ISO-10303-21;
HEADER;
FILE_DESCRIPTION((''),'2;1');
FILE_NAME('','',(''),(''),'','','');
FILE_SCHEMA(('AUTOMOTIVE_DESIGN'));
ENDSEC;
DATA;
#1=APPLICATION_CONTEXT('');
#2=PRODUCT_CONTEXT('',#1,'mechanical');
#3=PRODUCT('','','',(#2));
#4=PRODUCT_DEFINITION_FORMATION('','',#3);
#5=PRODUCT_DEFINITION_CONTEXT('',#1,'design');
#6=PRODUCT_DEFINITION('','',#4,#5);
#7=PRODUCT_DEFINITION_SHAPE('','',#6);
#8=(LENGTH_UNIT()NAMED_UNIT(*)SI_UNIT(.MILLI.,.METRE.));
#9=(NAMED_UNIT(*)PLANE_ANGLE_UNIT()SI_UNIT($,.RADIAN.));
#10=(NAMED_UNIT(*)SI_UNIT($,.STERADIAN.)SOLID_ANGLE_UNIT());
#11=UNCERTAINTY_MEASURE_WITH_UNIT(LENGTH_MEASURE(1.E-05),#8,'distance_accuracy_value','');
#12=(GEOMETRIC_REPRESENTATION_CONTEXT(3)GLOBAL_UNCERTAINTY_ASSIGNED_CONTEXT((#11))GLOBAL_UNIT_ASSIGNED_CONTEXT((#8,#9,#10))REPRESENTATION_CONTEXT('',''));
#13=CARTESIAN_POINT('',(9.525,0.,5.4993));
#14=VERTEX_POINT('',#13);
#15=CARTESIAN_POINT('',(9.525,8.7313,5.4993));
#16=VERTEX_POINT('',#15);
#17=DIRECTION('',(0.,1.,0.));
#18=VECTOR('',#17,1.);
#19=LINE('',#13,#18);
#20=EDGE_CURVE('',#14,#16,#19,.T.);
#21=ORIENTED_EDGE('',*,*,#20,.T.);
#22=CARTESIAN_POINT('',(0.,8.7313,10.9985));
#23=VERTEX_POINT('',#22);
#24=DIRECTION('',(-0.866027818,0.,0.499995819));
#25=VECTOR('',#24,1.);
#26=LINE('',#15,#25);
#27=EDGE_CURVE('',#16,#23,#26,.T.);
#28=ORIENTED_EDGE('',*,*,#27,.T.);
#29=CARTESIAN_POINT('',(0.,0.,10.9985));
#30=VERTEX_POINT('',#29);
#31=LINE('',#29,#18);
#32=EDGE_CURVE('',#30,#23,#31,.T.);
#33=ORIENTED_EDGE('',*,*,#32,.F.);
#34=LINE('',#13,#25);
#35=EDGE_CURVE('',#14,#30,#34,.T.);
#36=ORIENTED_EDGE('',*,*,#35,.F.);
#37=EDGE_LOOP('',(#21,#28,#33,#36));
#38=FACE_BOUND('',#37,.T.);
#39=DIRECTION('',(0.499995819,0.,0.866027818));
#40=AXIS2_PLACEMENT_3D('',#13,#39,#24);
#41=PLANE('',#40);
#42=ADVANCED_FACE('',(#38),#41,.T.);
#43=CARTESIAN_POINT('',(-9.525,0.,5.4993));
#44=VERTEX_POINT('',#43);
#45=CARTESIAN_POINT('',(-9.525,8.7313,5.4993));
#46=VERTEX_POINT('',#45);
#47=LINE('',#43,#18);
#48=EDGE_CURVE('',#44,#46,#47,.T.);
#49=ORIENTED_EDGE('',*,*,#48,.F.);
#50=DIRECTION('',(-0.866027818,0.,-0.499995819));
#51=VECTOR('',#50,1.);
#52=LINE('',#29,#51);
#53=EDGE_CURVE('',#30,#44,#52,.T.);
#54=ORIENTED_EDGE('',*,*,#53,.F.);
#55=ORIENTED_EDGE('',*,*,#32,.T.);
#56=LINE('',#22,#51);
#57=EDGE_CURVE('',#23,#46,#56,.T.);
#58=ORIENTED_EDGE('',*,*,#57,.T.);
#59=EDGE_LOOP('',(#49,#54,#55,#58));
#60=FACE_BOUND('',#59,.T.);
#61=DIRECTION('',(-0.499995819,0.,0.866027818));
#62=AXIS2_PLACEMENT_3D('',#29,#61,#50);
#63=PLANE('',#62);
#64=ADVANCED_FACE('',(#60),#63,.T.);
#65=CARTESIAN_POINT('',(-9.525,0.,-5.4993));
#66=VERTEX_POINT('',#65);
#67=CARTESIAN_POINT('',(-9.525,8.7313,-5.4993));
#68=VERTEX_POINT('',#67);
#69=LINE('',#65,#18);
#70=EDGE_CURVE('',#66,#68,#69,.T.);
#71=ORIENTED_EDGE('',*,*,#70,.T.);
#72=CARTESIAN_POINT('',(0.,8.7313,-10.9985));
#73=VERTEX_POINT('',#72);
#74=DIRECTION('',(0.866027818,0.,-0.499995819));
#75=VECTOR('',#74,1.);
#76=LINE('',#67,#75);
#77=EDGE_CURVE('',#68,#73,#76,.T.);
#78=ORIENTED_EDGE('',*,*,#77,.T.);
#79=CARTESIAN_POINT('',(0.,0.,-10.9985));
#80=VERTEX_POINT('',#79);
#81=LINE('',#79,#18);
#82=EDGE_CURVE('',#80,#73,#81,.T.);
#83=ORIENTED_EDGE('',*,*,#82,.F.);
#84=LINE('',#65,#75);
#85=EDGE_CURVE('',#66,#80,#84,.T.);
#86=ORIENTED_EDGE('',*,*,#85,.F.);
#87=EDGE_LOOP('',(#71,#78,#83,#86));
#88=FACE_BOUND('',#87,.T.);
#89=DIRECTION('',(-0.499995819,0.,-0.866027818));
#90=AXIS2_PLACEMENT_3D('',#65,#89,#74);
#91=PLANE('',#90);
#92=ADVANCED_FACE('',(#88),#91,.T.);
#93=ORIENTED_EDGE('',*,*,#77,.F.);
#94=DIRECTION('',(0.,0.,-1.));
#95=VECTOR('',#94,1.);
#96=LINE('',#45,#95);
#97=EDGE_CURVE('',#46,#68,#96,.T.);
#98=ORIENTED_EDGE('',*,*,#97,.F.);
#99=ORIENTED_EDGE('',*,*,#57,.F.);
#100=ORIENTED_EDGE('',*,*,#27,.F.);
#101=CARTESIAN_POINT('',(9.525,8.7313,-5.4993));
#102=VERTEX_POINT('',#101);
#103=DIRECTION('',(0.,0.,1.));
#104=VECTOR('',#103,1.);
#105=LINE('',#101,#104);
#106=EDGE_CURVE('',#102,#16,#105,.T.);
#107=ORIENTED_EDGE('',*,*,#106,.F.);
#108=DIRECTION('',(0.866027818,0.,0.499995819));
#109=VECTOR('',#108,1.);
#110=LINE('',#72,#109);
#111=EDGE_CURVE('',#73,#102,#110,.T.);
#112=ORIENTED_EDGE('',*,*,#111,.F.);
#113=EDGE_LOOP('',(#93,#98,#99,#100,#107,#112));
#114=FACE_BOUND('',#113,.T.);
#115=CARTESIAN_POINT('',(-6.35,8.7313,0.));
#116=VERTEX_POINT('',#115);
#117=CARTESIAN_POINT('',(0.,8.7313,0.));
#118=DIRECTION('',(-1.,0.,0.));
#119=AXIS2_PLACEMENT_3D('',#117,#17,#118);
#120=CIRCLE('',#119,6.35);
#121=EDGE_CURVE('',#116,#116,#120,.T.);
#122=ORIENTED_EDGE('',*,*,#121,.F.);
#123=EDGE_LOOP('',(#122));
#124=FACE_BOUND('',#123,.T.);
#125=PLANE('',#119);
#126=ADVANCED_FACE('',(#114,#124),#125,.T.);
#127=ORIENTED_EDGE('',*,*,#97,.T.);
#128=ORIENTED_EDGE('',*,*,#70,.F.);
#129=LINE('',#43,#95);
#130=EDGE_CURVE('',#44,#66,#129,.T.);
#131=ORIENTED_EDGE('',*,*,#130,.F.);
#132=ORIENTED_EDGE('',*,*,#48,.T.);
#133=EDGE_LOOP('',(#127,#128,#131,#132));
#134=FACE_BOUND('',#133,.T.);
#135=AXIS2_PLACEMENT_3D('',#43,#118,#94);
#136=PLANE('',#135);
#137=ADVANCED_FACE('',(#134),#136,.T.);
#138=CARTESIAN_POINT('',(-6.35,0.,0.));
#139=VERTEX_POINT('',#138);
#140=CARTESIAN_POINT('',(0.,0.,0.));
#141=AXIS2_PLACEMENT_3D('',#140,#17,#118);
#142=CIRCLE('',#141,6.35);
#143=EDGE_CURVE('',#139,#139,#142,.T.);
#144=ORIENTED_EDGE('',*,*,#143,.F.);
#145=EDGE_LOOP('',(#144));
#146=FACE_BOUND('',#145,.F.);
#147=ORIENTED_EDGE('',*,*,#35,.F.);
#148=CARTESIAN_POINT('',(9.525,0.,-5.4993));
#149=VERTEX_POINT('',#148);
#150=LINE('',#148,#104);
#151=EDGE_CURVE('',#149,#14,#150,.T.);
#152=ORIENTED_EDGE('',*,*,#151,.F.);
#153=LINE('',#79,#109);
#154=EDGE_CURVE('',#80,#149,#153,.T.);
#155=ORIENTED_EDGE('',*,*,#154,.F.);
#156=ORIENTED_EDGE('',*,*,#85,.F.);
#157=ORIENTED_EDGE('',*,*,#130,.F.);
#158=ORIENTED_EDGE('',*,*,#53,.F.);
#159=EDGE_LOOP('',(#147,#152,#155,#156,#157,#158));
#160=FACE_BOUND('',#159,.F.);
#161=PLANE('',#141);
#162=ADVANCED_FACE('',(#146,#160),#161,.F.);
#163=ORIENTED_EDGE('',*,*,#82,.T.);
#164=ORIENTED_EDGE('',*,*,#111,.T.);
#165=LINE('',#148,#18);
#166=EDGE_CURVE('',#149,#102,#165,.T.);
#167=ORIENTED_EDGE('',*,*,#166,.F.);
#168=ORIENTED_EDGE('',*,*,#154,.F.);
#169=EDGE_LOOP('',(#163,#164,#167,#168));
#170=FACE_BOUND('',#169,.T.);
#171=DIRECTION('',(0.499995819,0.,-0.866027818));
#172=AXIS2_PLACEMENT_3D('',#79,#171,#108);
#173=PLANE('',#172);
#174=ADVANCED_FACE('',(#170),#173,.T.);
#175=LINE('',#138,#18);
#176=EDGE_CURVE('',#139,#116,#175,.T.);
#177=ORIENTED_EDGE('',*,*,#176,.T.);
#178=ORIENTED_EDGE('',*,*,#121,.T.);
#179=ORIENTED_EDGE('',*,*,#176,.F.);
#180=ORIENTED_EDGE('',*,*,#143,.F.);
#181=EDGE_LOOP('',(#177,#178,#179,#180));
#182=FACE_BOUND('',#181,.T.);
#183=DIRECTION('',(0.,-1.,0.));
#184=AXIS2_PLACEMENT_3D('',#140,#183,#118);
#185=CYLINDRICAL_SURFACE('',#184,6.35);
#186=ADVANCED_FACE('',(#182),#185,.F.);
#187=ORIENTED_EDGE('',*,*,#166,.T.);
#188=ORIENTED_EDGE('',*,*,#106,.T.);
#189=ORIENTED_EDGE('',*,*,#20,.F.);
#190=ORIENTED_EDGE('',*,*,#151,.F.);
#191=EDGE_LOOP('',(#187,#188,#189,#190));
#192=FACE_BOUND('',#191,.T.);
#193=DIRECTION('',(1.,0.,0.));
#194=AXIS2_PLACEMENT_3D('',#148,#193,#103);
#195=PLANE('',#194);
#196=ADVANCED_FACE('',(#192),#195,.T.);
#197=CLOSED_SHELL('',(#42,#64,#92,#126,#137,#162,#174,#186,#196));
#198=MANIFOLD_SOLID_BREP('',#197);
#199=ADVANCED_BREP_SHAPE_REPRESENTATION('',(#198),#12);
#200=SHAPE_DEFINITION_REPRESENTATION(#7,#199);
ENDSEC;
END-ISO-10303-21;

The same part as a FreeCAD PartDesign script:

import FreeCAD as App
import Part
import Sketcher
from FreeCAD import Vector
Q = App.Units.Quantity


def add_polygon(sketch, points):
    """Adds a closed chain of lines whose ends are joined by coincident constraints."""
    first, n = sketch.GeometryCount, len(points)
    for a, b in zip(points, points[1:] + points[:1]):
        sketch.addGeometry(Part.LineSegment(App.Vector(*a, 0), App.Vector(*b, 0)), False)
    for i in range(n):
        sketch.addConstraint(Sketcher.Constraint("Coincident", first + i, 2, first + (i + 1) % n, 1))

doc = App.newDocument("Part")
body = doc.addObject("PartDesign::Body", "Body")

sketch1 = doc.addObject("Sketcher::SketchObject", "Sketch")
body.addObject(sketch1)
sketch1.AttachmentSupport = (doc.XZ_Plane, [""])
sketch1.MapMode = "FlatFace"
add_polygon(sketch1, [(0, -11), (-10, -5), (-10, 5), (0, 11), (10, 5), (10, -5)])
sketch1.addGeometry(Part.Circle(Vector(0, 0, 0), Vector(0, 0, 1), 6), False)
sketch1.addConstraint(Sketcher.Constraint("Vertical", 1))
sketch1.addConstraint(Sketcher.Constraint("Vertical", 4))
sketch1.addConstraint(Sketcher.Constraint("Coincident", 6, 3, -1, 1))
sketch1.addConstraint(Sketcher.Constraint("Symmetric", 0, 2, 3, 2, -1, 1))
sketch1.addConstraint(Sketcher.Constraint("Symmetric", 2, 2, 5, 2, -1, 1))
sketch1.addConstraint(Sketcher.Constraint("PointOnObject", 2, 2, -2))
sketch1.addConstraint(Sketcher.Constraint("Parallel", 2, 5))
sketch1.addConstraint(Sketcher.Constraint("Horizontal", 1, 2, 3, 2))
sketch1.addConstraint(Sketcher.Constraint("Diameter", 6, Q("0.5 in")))
sketch1.addConstraint(Sketcher.Constraint("DistanceX", 1, 2, 3, 2, Q("0.75 in")))
sketch1.addConstraint(Sketcher.Constraint("Angle", 0, Q("150.0003 deg")))
sketch1.addConstraint(Sketcher.Constraint("DistanceY", -1, 1, 2, 2, Q("0.433 in")))
pad1 = doc.addObject("PartDesign::Pad", "Pad")
body.addObject(pad1)
pad1.Profile = sketch1
pad1.Length = Q("0.343752 in")
pad1.Reversed = True

doc.recompute()
